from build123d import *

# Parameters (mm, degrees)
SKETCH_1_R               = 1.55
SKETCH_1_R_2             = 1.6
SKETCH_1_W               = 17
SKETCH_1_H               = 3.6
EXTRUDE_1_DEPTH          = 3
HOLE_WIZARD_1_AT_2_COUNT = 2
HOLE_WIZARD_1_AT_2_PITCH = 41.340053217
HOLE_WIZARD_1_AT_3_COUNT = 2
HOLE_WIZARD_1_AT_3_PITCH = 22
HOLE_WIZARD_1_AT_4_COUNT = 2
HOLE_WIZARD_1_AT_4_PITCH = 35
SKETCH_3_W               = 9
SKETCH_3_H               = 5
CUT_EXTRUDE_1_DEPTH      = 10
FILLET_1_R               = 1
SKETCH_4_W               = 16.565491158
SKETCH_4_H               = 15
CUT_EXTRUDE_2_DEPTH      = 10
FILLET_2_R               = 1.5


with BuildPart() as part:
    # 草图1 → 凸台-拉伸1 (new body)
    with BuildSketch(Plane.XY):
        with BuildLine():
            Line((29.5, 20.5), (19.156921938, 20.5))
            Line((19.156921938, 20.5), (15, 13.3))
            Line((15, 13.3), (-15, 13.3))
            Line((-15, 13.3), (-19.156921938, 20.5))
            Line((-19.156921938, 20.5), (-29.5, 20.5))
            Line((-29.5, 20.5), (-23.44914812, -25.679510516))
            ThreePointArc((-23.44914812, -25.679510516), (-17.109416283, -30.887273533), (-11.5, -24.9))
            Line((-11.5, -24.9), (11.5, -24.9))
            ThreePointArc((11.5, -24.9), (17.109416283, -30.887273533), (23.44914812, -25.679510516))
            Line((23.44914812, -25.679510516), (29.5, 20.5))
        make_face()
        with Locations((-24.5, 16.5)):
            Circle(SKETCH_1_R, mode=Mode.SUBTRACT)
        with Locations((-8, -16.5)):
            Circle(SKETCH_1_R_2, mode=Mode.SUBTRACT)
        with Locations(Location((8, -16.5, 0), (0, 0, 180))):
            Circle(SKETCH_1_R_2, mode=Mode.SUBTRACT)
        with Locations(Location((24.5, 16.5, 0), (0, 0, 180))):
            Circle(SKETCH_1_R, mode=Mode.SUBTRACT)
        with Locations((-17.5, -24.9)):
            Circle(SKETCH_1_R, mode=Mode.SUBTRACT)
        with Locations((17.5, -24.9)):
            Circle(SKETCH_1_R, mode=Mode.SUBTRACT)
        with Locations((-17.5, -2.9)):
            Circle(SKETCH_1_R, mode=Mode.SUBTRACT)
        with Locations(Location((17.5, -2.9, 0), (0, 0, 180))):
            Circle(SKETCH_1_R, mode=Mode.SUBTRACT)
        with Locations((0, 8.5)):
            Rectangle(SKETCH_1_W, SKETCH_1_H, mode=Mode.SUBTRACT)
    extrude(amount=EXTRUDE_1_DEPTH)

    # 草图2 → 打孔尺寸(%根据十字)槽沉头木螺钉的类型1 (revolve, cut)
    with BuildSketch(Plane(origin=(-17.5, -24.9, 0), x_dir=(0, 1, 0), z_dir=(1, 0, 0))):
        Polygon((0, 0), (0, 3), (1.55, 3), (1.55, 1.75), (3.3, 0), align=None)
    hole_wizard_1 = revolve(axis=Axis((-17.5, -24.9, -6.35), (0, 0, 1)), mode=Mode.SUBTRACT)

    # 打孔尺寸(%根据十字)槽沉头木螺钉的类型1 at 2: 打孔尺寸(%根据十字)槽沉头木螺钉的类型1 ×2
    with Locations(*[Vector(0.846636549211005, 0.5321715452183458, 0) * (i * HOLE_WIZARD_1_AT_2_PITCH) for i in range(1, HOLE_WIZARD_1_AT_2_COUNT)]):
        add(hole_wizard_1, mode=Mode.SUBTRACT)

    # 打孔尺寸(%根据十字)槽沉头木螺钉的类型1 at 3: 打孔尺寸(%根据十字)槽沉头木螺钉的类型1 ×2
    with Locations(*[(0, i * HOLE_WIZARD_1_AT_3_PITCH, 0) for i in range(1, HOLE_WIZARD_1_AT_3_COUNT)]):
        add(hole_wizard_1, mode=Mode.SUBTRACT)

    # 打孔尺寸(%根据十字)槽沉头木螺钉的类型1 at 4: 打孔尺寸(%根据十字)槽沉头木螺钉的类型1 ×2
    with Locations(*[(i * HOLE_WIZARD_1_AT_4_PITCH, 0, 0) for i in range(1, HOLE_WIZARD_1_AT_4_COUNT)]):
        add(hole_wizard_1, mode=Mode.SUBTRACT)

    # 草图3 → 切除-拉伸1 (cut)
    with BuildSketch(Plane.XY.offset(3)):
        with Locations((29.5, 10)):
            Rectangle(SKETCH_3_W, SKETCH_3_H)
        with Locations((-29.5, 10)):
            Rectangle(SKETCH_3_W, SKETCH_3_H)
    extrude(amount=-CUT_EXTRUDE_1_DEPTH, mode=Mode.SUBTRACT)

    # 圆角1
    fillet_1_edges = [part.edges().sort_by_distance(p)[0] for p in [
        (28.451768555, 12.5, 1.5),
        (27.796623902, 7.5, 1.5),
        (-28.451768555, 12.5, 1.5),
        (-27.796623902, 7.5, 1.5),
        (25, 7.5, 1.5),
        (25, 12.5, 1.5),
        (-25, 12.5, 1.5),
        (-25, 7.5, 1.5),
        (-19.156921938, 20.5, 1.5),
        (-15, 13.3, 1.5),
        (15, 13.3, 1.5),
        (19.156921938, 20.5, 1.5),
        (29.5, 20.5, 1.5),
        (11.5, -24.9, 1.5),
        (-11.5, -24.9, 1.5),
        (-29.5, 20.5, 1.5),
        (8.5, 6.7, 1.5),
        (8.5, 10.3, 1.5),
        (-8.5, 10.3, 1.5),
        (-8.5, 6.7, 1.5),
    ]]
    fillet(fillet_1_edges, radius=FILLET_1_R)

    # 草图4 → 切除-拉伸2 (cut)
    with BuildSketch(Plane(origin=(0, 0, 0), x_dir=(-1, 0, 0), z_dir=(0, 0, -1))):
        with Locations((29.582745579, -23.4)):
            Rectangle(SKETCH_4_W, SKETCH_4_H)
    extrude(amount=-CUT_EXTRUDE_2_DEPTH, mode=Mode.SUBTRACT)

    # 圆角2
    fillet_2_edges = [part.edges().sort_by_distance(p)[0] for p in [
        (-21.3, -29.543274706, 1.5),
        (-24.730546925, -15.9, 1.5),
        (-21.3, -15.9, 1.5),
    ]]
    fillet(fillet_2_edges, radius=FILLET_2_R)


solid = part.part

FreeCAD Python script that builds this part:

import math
import FreeCAD as App
import Part
import Sketcher

V = App.Vector
Q = App.Units.Quantity


def edges_at(feature, points):
    """Names of the edges that pass closest to the given points."""
    edges = feature.Shape.Edges
    near = lambda p: min(range(len(edges)), key=lambda i: edges[i].distToShape(Part.Vertex(*p))[0])
    return sorted({f"Edge{near(p) + 1}" for p in points})

doc = App.newDocument("Part")
body = doc.addObject("PartDesign::Body", "Body")

sketch1 = body.newObject("Sketcher::SketchObject", "Sketch")
sketch1.AttachmentSupport = (doc.getObject("XY_Plane"), [""])
sketch1.MapMode = "FlatFace"
sketch1.addGeometry(Part.LineSegment(V(29.5, 20.5, 0), V(19.2, 20.5, 0)), False)
sketch1.addGeometry(Part.LineSegment(V(19.2, 20.5, 0), V(15, 13.3, 0)), False)
sketch1.addGeometry(Part.LineSegment(V(15, 13.3, 0), V(-15, 13.3, 0)), False)
sketch1.addGeometry(Part.LineSegment(V(-15, 13.3, 0), V(-19.2, 20.5, 0)), False)
sketch1.addGeometry(Part.LineSegment(V(-19.2, 20.5, 0), V(-29.5, 20.5, 0)), False)
sketch1.addGeometry(Part.LineSegment(V(-29.5, 20.5, 0), V(-23.4, -25.7, 0)), False)
sketch1.addGeometry(Part.ArcOfCircle(Part.Circle(V(-17.5, -24.9, 0), V(0, 0, 1), 6), math.radians(-173), math.radians(0)), False)
sketch1.addGeometry(Part.LineSegment(V(-11.5, -24.9, 0), V(11.5, -24.9, 0)), False)
sketch1.addGeometry(Part.ArcOfCircle(Part.Circle(V(17.5, -24.9, 0), V(0, 0, 1), 6), math.radians(180), math.radians(353)), False)
sketch1.addGeometry(Part.LineSegment(V(23.4, -25.7, 0), V(29.5, 20.5, 0)), False)
sketch1.addGeometry(Part.Circle(V(-17.5, -24.9, 0), V(0, 0, 1), 1.6), False)
sketch1.addGeometry(Part.Circle(V(-8, -16.5, 0), V(0, 0, 1), 1.6), False)
sketch1.addGeometry(Part.Circle(V(8, -16.5, 0), V(0, 0, 1), 1.6), False)
sketch1.addGeometry(Part.Circle(V(17.5, -24.9, 0), V(0, 0, 1), 1.6), False)
sketch1.addGeometry(Part.Circle(V(-17.5, -2.9, 0), V(0, 0, 1), 1.6), False)
sketch1.addGeometry(Part.Circle(V(-24.5, 16.5, 0), V(0, 0, 1), 1.6), False)
sketch1.addGeometry(Part.Circle(V(17.5, -2.9, 0), V(0, 0, 1), 1.6), False)
sketch1.addGeometry(Part.LineSegment(V(8.5, 6.7, 0), V(-8.5, 6.7, 0)), False)
sketch1.addGeometry(Part.LineSegment(V(-8.5, 6.7, 0), V(-8.5, 10.3, 0)), False)
sketch1.addGeometry(Part.LineSegment(V(-8.5, 10.3, 0), V(8.5, 10.3, 0)), False)
sketch1.addGeometry(Part.LineSegment(V(8.5, 10.3, 0), V(8.5, 6.7, 0)), False)
sketch1.addGeometry(Part.Circle(V(24.5, 16.5, 0), V(0, 0, 1), 1.6), False)
sketch1.addConstraint(Sketcher.Constraint("Coincident", 0, 2, 1, 1))
sketch1.addConstraint(Sketcher.Constraint("Coincident", 1, 2, 2, 1))
sketch1.addConstraint(Sketcher.Constraint("Coincident", 2, 2, 3, 1))
sketch1.addConstraint(Sketcher.Constraint("Coincident", 3, 2, 4, 1))
sketch1.addConstraint(Sketcher.Constraint("Coincident", 4, 2, 5, 1))
sketch1.addConstraint(Sketcher.Constraint("Tangent", 5, 2, 6, 1))
sketch1.addConstraint(Sketcher.Constraint("Coincident", 6, 2, 7, 1))
sketch1.addConstraint(Sketcher.Constraint("Coincident", 7, 2, 8, 1))
sketch1.addConstraint(Sketcher.Constraint("Tangent", 8, 2, 9, 1))
sketch1.addConstraint(Sketcher.Constraint("Coincident", 9, 2, 0, 1))
sketch1.addConstraint(Sketcher.Constraint("Coincident", 17, 2, 18, 1))
sketch1.addConstraint(Sketcher.Constraint("Coincident", 18, 2, 19, 1))
sketch1.addConstraint(Sketcher.Constraint("Coincident", 19, 2, 20, 1))
sketch1.addConstraint(Sketcher.Constraint("Coincident", 20, 2, 17, 1))
sketch1.addConstraint(Sketcher.Constraint("Horizontal", 0))
sketch1.addConstraint(Sketcher.Constraint("Horizontal", 2))
sketch1.addConstraint(Sketcher.Constraint("Horizontal", 4))
sketch1.addConstraint(Sketcher.Constraint("Horizontal", 7))
sketch1.addConstraint(Sketcher.Constraint("Horizontal", 17))
sketch1.addConstraint(Sketcher.Constraint("Vertical", 18))
sketch1.addConstraint(Sketcher.Constraint("Horizontal", 19))
sketch1.addConstraint(Sketcher.Constraint("Vertical", 20))
sketch1.addConstraint(Sketcher.Constraint("Coincident", 10, 3, 6, 3))
sketch1.addConstraint(Sketcher.Constraint("Coincident", 13, 3, 8, 3))
sketch1.addConstraint(Sketcher.Constraint("Equal", 6, 8))
sketch1.addConstraint(Sketcher.Constraint("Equal", 11, 12))
sketch1.addConstraint(Sketcher.Constraint("Equal", 10, 13))
sketch1.addConstraint(Sketcher.Constraint("Equal", 13, 14))
sketch1.addConstraint(Sketcher.Constraint("Equal", 14, 15))
sketch1.addConstraint(Sketcher.Constraint("Equal", 15, 16))
sketch1.addConstraint(Sketcher.Constraint("Equal", 16, 21))
sketch1.addConstraint(Sketcher.Constraint("Symmetric", 6, 3, 8, 3, -2))
sketch1.addConstraint(Sketcher.Constraint("Symmetric", 11, 3, 12, 3, -2))
sketch1.addConstraint(Sketcher.Constraint("Symmetric", 14, 3, 16, 3, -2))
sketch1.addConstraint(Sketcher.Constraint("Symmetric", 15, 3, 21, 3, -2))
sketch1.addConstraint(Sketcher.Constraint("Symmetric", 0, 2, 3, 2, -2))
sketch1.addConstraint(Sketcher.Constraint("Horizontal", 13, 3, 6, 2))
sketch1.addConstraint(Sketcher.Constraint("Horizontal", 5, 2, 8, 2))
sketch1.addConstraint(Sketcher.Constraint("Vertical", 10, 3, 14, 3))
sketch1.addConstraint(Sketcher.Constraint("Equal", 1, 3))
sketch1.addConstraint(Sketcher.Constraint("Radius", 6, 6.0))
sketch1.addConstraint(Sketcher.Constraint("Diameter", 10, 3.1))
sketch1.addConstraint(Sketcher.Constraint("Diameter", 11, 3.2))
sketch1.addConstraint(Sketcher.Constraint("DistanceX", 2, 2, 2, 1, 30.0))
sketch1.addConstraint(Sketcher.Constraint("DistanceX", 7, 1, 7, 2, 23.0))
sketch1.addConstraint(Sketcher.Constraint("DistanceX", 17, 2, 17, 1, 17.0))
sketch1.addConstraint(Sketcher.Constraint("Angle", 1, Q("-120 deg")))
sketch1.addConstraint(Sketcher.Constraint("DistanceY", 18, 1, 18, 2, 3.6))
sketch1.addConstraint(Sketcher.Constraint("DistanceX", 11, 3, -1, 1, 8.0))
sketch1.addConstraint(Sketcher.Constraint("DistanceY", 6, 3, 14, 3, 22.0))
sketch1.addConstraint(Sketcher.Constraint("DistanceX", 15, 3, 14, 3, 7.0))
sketch1.addConstraint(Sketcher.Constraint("DistanceY", 11, 3, 15, 3, 33.0))
sketch1.addConstraint(Sketcher.Constraint("DistanceY", 21, 3, 0, 2, 4.0))
sketch1.addConstraint(Sketcher.Constraint("DistanceX", 4, 2, 15, 3, 5.0))
sketch1.addConstraint(Sketcher.Constraint("DistanceX", 14, 3, 17, 2, 9.0))
sketch1.addConstraint(Sketcher.Constraint("DistanceY", 18, 2, 2, 2, 3.0))
sketch1.addConstraint(Sketcher.Constraint("DistanceY", 6, 3, -1, 1, 24.9))
sketch1.addConstraint(Sketcher.Constraint("DistanceY", 11, 3, -1, 1, 16.5))
sketch1.addConstraint(Sketcher.Constraint("DistanceY", -1, 1, 1, 2, 13.3))
pad1 = body.newObject("PartDesign::Pad", "Pad")
pad1.Profile = sketch1
pad1.Length = 3

sketch2 = body.newObject("Sketcher::SketchObject", "Sketch001")
sketch2.AttachmentSupport = (doc.getObject("YZ_Plane"), [""])
sketch2.MapMode = "FlatFace"
sketch2.AttachmentOffset = App.Placement(V(0, 0, -17.5), App.Rotation())
sketch2.addGeometry(Part.LineSegment(V(-24.9, 3, 0), V(-24.9, 0, 0)), False)
sketch2.addGeometry(Part.LineSegment(V(-24.9, 0, 0), V(-21.6, 0, 0)), False)
sketch2.addGeometry(Part.LineSegment(V(-21.6, 0, 0), V(-23.4, 1.8, 0)), False)
sketch2.addGeometry(Part.LineSegment(V(-23.4, 1.8, 0), V(-23.4, 3, 0)), False)
sketch2.addGeometry(Part.LineSegment(V(-23.4, 3, 0), V(-24.9, 3, 0)), False)
sketch2.addGeometry(Part.LineSegment(V(-24.9, 0, 0), V(-24.9, 3, 0)), True)
sketch2.addConstraint(Sketcher.Constraint("Coincident", 0, 2, 1, 1))
sketch2.addConstraint(Sketcher.Constraint("Coincident", 1, 2, 2, 1))
sketch2.addConstraint(Sketcher.Constraint("Coincident", 2, 2, 3, 1))
sketch2.addConstraint(Sketcher.Constraint("Coincident", 3, 2, 4, 1))
sketch2.addConstraint(Sketcher.Constraint("Coincident", 4, 2, 0, 1))
sketch2.addConstraint(Sketcher.Constraint("Vertical", 0))
sketch2.addConstraint(Sketcher.Constraint("Horizontal", 1))
sketch2.addConstraint(Sketcher.Constraint("Vertical", 3))
sketch2.addConstraint(Sketcher.Constraint("Horizontal", 4))
sketch2.addConstraint(Sketcher.Constraint("Vertical", 5))
sketch2.addConstraint(Sketcher.Constraint("Coincident", 5, 1, 0, 2))
sketch2.addConstraint(Sketcher.Constraint("PointOnObject", 0, 2, -1))
sketch2.addConstraint(Sketcher.Constraint("Horizontal", 3, 2, 5, 2))
sketch2.addConstraint(Sketcher.Constraint("DistanceY", 0, 2, 0, 1, 3.0))
sketch2.addConstraint(Sketcher.Constraint("Angle", 2, Q("135 deg")))
sketch2.addConstraint(Sketcher.Constraint("DistanceX", 1, 1, 1, 2, 3.3))
sketch2.addConstraint(Sketcher.Constraint("DistanceX", 4, 2, 4, 1, 1.55))
sketch2.addConstraint(Sketcher.Constraint("DistanceX", 0, 2, -1, 1, 24.9))
groove = body.newObject("PartDesign::Groove", "Groove")
groove.Profile = sketch2
groove.ReferenceAxis = (sketch2, ["Axis0"])
groove.Angle = 360
doc.recompute()

datumline = body.newObject("PartDesign::Line", "DatumLine")
datumline.Placement = App.Placement(V(0, 0, 0), App.Rotation(V(0, 0, 1), V(0.846636549, 0.532171545, 0)))
linearpattern = body.newObject("PartDesign::LinearPattern", "LinearPattern")
linearpattern.Originals = [groove]
linearpattern.Direction = (datumline, [""])
linearpattern.Mode = "offset"
linearpattern.Offset = 41.340053
linearpattern.Occurrences = 2
body.Tip = linearpattern
doc.recompute()

linearpattern2 = body.newObject("PartDesign::LinearPattern", "LinearPattern001")
linearpattern2.Originals = [groove]
linearpattern2.Direction = (doc.getObject("Y_Axis"), [""])
linearpattern2.Mode = "offset"
linearpattern2.Offset = 22
linearpattern2.Occurrences = 2
body.Tip = linearpattern2
doc.recompute()

linearpattern3 = body.newObject("PartDesign::LinearPattern", "LinearPattern002")
linearpattern3.Originals = [groove]
linearpattern3.Direction = (doc.getObject("X_Axis"), [""])
linearpattern3.Mode = "offset"
linearpattern3.Offset = 35
linearpattern3.Occurrences = 2
body.Tip = linearpattern3

sketch3 = body.newObject("Sketcher::SketchObject", "Sketch002")
sketch3.AttachmentSupport = (doc.getObject("XY_Plane"), [""])
sketch3.MapMode = "FlatFace"
sketch3.AttachmentOffset = App.Placement(V(0, 0, 3), App.Rotation())
sketch3.addGeometry(Part.LineSegment(V(25, 12, 0), V(25, 8, 0)), False)
sketch3.addGeometry(Part.LineSegment(V(25, 8, 0), V(34, 8, 0)), False)
sketch3.addGeometry(Part.LineSegment(V(34, 8, 0), V(34, 12, 0)), False)
sketch3.addGeometry(Part.LineSegment(V(34, 12, 0), V(25, 12, 0)), False)
sketch3.addGeometry(Part.LineSegment(V(-34, 12, 0), V(-34, 8, 0)), False)
sketch3.addGeometry(Part.LineSegment(V(-34, 8, 0), V(-25, 8, 0)), False)
sketch3.addGeometry(Part.LineSegment(V(-25, 8, 0), V(-25, 12, 0)), False)
sketch3.addGeometry(Part.LineSegment(V(-25, 12, 0), V(-34, 12, 0)), False)
sketch3.addConstraint(Sketcher.Constraint("Coincident", 0, 2, 1, 1))
sketch3.addConstraint(Sketcher.Constraint("Coincident", 1, 2, 2, 1))
sketch3.addConstraint(Sketcher.Constraint("Coincident", 2, 2, 3, 1))
sketch3.addConstraint(Sketcher.Constraint("Coincident", 3, 2, 0, 1))
sketch3.addConstraint(Sketcher.Constraint("Coincident", 4, 2, 5, 1))
sketch3.addConstraint(Sketcher.Constraint("Coincident", 5, 2, 6, 1))
sketch3.addConstraint(Sketcher.Constraint("Coincident", 6, 2, 7, 1))
sketch3.addConstraint(Sketcher.Constraint("Coincident", 7, 2, 4, 1))
sketch3.addConstraint(Sketcher.Constraint("Vertical", 0))
sketch3.addConstraint(Sketcher.Constraint("Horizontal", 1))
sketch3.addConstraint(Sketcher.Constraint("Vertical", 2))
sketch3.addConstraint(Sketcher.Constraint("Horizontal", 3))
sketch3.addConstraint(Sketcher.Constraint("Vertical", 4))
sketch3.addConstraint(Sketcher.Constraint("Horizontal", 5))
sketch3.addConstraint(Sketcher.Constraint("Vertical", 6))
sketch3.addConstraint(Sketcher.Constraint("Horizontal", 7))
sketch3.addConstraint(Sketcher.Constraint("Symmetric", 1, 2, 4, 2, -2))
sketch3.addConstraint(Sketcher.Constraint("Symmetric", 3, 2, 6, 2, -2))
sketch3.addConstraint(Sketcher.Constraint("DistanceX", 1, 1, 1, 2, 9.0))
sketch3.addConstraint(Sketcher.Constraint("DistanceY", 0, 2, 0, 1, 5.0))
sketch3.addConstraint(Sketcher.Constraint("DistanceX", -1, 1, 0, 2, 25.0))
sketch3.addConstraint(Sketcher.Constraint("DistanceY", -1, 1, 0, 2, 7.5))
pocket1 = body.newObject("PartDesign::Pocket", "Pocket")
pocket1.Profile = sketch3
pocket1.Length = 10
doc.recompute()

fillet = body.newObject("PartDesign::Fillet", "Fillet")
fillet.Base = (pocket1, edges_at(pocket1, [
    (28.452, 12.5, 1.5),
    (27.797, 7.5, 1.5),
    (-28.452, 12.5, 1.5),
    (-27.797, 7.5, 1.5),
    (25, 7.5, 1.5),
    (25, 12.5, 1.5),
    (-25, 12.5, 1.5),
    (-25, 7.5, 1.5),
    (-19.157, 20.5, 1.5),
    (-15, 13.3, 1.5),
    (15, 13.3, 1.5),
    (19.157, 20.5, 1.5),
    (29.5, 20.5, 1.5),
    (11.5, -24.9, 1.5),
    (-11.5, -24.9, 1.5),
    (-29.5, 20.5, 1.5),
    (8.5, 6.7, 1.5),
    (8.5, 10.3, 1.5),
    (-8.5, 10.3, 1.5),
    (-8.5, 6.7, 1.5),
]))
fillet.Radius = 1

sketch4 = body.newObject("Sketcher::SketchObject", "Sketch003")
sketch4.AttachmentSupport = (doc.getObject("XY_Plane"), [""])
sketch4.MapMode = "FlatFace"
sketch4.addGeometry(Part.LineSegment(V(-21, -16, 0), V(-21, -31, 0)), False)
sketch4.addGeometry(Part.LineSegment(V(-21, -31, 0), V(-38, -31, 0)), False)
sketch4.addGeometry(Part.LineSegment(V(-38, -31, 0), V(-38, -16, 0)), False)
sketch4.addGeometry(Part.LineSegment(V(-38, -16, 0), V(-21, -16, 0)), False)
sketch4.addConstraint(Sketcher.Constraint("Coincident", 0, 2, 1, 1))
sketch4.addConstraint(Sketcher.Constraint("Coincident", 1, 2, 2, 1))
sketch4.addConstraint(Sketcher.Constraint("Coincident", 2, 2, 3, 1))
sketch4.addConstraint(Sketcher.Constraint("Coincident", 3, 2, 0, 1))
sketch4.addConstraint(Sketcher.Constraint("Vertical", 0))
sketch4.addConstraint(Sketcher.Constraint("Horizontal", 1))
sketch4.addConstraint(Sketcher.Constraint("Vertical", 2))
sketch4.addConstraint(Sketcher.Constraint("Horizontal", 3))
sketch4.addConstraint(Sketcher.Constraint("DistanceY", 0, 2, 0, 1, 15.0))
sketch4.addConstraint(Sketcher.Constraint("DistanceX", 0, 2, -1, 1, 21.3))
sketch4.addConstraint(Sketcher.Constraint("DistanceY", 0, 2, -1, 1, 30.9))
sketch4.addConstraint(Sketcher.Constraint("DistanceX", 1, 2, 1, 1, 16.565491))
pocket2 = body.newObject("PartDesign::Pocket", "Pocket001")
pocket2.Profile = sketch4
pocket2.Length = 10
pocket2.Reversed = True
doc.recompute()

fillet2 = body.newObject("PartDesign::Fillet", "Fillet001")
fillet2.Base = (pocket2, edges_at(pocket2, [(-21.3, -29.543, 1.5), (-24.731, -15.9, 1.5), (-21.3, -15.9, 1.5)]))
fillet2.Radius = 1.5

doc.recompute()
